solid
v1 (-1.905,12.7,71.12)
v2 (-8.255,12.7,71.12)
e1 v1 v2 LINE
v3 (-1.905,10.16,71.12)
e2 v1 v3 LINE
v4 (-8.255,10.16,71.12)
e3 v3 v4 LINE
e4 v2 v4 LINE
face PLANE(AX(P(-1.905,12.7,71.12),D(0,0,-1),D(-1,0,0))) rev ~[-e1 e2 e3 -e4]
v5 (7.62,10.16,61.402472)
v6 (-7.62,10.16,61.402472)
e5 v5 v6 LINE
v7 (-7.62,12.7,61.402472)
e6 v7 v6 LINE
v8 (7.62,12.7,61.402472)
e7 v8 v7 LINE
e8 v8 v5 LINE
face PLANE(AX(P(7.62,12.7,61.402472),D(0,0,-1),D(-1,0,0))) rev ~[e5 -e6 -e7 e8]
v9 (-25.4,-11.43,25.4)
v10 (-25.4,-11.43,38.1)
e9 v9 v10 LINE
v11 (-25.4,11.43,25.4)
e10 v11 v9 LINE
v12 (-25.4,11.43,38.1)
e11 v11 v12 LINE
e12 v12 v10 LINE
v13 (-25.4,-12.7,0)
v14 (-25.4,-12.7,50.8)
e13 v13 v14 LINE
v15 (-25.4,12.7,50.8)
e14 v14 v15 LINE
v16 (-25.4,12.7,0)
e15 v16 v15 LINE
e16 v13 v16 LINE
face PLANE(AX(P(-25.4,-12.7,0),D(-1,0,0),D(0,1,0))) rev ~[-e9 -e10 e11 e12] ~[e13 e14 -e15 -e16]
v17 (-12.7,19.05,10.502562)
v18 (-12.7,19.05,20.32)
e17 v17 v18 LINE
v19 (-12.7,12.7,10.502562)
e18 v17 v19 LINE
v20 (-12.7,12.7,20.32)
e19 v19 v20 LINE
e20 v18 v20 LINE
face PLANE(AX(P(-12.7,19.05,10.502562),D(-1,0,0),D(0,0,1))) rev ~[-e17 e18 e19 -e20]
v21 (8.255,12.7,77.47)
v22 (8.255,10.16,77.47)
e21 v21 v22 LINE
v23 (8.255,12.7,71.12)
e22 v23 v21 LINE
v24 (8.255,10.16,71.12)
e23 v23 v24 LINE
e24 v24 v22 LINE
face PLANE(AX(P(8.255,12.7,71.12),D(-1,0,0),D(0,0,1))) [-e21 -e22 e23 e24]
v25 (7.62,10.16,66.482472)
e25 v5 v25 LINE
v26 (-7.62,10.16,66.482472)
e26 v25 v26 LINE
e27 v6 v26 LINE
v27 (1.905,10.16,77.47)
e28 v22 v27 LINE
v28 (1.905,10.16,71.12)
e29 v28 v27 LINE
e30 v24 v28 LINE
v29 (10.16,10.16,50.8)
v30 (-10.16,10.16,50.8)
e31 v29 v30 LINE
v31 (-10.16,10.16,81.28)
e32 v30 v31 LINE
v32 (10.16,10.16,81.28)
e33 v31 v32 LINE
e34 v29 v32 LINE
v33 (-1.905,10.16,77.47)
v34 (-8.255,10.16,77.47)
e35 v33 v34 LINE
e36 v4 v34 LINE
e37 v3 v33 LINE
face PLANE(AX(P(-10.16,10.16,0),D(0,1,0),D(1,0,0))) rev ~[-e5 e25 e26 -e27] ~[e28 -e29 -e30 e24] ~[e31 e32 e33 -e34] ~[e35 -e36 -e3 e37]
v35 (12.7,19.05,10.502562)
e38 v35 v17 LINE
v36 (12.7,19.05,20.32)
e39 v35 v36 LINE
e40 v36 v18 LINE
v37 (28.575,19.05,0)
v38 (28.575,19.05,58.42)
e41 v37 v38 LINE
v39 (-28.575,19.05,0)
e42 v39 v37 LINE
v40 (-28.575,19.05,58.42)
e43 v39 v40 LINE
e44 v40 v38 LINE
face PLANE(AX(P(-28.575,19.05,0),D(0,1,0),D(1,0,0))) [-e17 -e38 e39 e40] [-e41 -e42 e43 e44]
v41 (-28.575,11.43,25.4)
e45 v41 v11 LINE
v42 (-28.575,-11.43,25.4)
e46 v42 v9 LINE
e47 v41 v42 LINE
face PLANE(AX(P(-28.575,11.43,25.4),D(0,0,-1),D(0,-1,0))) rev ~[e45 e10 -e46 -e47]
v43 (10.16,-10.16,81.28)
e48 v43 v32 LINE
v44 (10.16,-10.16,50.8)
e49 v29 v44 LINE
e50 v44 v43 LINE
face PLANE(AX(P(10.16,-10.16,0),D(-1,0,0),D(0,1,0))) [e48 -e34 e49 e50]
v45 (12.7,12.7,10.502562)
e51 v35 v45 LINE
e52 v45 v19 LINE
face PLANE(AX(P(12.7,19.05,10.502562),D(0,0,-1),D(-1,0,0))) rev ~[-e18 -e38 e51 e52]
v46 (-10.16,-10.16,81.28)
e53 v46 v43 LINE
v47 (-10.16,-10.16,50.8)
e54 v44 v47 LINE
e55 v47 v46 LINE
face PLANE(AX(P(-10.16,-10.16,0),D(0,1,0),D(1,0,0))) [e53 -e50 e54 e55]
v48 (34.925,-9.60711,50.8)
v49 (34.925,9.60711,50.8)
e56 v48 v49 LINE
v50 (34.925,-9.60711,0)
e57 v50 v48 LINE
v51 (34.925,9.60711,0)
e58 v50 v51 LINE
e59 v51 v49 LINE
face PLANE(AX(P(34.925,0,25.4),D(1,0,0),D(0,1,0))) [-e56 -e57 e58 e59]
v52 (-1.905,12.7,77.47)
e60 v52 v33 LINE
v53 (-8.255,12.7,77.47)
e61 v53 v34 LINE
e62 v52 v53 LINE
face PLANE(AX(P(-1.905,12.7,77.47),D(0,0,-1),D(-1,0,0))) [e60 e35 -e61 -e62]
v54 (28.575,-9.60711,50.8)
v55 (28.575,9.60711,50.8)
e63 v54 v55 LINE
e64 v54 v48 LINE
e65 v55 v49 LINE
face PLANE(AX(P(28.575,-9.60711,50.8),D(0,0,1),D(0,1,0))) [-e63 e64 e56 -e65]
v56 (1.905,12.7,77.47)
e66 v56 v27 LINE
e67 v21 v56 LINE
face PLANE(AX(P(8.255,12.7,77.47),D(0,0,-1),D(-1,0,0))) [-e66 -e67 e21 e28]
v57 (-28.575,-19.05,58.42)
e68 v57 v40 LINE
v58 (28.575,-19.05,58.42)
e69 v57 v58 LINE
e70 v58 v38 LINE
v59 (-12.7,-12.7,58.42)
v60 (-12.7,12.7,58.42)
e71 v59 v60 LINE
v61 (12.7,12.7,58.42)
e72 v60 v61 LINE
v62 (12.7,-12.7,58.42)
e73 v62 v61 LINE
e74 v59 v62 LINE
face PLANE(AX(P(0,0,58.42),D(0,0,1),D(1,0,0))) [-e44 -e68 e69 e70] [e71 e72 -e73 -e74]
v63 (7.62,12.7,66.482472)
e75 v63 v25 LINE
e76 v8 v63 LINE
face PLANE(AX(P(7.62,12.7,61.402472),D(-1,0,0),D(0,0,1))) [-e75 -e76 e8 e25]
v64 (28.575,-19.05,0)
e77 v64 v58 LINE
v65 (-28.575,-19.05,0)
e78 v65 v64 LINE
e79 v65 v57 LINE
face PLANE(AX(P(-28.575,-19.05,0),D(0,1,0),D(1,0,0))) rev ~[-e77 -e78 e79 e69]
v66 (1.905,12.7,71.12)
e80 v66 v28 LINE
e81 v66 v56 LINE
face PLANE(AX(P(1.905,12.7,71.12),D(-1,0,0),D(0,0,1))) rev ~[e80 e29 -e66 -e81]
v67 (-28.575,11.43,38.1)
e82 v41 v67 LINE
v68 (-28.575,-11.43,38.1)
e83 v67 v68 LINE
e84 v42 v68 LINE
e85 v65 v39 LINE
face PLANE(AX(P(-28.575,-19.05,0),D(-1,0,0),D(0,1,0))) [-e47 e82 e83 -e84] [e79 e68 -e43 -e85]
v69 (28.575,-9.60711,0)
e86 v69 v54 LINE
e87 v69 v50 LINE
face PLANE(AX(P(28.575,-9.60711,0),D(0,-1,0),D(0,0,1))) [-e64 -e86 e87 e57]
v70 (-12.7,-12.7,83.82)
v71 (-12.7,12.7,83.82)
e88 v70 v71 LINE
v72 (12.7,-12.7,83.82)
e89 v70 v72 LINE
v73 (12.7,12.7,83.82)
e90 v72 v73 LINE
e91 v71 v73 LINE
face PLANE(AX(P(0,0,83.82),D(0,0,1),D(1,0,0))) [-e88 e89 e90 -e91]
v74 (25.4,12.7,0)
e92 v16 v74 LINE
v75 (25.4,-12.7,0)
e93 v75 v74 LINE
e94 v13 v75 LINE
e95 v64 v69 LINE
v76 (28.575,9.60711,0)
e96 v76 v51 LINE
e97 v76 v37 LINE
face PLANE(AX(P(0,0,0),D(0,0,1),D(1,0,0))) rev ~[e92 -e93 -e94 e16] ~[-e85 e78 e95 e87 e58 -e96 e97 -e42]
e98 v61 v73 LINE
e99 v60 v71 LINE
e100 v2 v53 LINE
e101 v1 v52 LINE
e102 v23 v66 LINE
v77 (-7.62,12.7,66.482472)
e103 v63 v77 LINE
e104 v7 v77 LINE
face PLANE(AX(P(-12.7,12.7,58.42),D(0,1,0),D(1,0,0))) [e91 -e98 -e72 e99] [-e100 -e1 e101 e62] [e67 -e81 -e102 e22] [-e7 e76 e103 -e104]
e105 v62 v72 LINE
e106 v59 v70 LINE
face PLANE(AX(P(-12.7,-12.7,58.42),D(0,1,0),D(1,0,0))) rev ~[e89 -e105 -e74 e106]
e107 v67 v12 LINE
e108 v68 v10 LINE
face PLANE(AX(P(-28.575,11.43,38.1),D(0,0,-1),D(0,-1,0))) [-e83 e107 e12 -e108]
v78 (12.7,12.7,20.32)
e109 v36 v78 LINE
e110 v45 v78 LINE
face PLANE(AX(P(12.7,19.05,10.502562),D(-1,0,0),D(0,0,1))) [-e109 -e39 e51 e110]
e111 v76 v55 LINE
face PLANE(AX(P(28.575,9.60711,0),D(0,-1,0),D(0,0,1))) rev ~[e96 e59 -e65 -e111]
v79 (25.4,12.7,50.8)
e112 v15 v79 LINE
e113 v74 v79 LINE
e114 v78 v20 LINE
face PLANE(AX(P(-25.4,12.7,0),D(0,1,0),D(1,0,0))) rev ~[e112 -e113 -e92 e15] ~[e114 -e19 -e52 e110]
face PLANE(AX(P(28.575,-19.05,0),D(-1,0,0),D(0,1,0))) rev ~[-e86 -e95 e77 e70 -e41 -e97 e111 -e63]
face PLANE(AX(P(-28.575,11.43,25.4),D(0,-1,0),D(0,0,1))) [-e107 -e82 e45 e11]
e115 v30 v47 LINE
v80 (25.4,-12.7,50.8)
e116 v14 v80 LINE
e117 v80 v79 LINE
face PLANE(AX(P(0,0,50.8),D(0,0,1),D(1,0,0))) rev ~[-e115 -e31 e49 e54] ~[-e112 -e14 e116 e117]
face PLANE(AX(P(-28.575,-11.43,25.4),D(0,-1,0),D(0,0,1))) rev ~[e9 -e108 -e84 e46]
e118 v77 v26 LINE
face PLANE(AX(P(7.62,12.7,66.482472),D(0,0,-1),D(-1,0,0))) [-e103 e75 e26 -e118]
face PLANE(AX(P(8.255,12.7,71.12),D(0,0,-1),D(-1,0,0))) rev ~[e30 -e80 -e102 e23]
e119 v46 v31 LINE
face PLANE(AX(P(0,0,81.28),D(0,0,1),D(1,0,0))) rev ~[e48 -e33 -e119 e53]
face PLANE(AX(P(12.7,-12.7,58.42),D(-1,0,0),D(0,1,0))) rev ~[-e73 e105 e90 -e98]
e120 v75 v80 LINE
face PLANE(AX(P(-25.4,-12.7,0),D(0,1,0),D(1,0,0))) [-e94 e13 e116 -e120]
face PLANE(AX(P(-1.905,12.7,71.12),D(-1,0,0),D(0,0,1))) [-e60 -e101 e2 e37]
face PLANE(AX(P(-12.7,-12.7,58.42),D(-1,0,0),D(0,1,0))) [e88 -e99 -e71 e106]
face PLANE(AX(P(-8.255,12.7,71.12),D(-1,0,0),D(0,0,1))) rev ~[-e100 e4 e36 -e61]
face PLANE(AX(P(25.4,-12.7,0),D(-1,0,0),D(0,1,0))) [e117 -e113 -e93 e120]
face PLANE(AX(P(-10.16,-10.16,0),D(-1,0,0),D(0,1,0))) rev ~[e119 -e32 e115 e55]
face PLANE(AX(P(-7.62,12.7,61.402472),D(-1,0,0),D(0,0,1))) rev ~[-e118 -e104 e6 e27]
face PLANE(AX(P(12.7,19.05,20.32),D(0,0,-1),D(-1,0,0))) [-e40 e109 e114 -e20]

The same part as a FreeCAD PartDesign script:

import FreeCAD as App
import Part
import Sketcher
Q = App.Units.Quantity


def add_polygon(sketch, points):
    """Adds a closed chain of lines whose ends are joined by coincident constraints."""
    first, n = sketch.GeometryCount, len(points)
    for a, b in zip(points, points[1:] + points[:1]):
        sketch.addGeometry(Part.LineSegment(App.Vector(*a, 0), App.Vector(*b, 0)), False)
    for i in range(n):
        sketch.addConstraint(Sketcher.Constraint("Coincident", first + i, 2, first + (i + 1) % n, 1))

doc = App.newDocument("Part")
body = doc.addObject("PartDesign::Body", "Body")

# Sketch on XY plane
sketch1 = body.newObject("Sketcher::SketchObject", "Sketch")
sketch1.AttachmentSupport = (doc.getObject("XY_Plane"), [""])
sketch1.MapMode = "FlatFace"
add_polygon(sketch1, [(-28.575, 19.05), (-28.575, -19.05), (28.575, -19.05), (28.575, 19.05)])  # lines 0-3
sketch1.addConstraint([
    Sketcher.Constraint("Vertical", 0),
    Sketcher.Constraint("Horizontal", 1),
    Sketcher.Constraint("Vertical", 2),
    Sketcher.Constraint("Horizontal", 3),
    Sketcher.Constraint("Symmetric", 0, 2, 2, 2, -1, 1),
    Sketcher.Constraint("DistanceY", 0, 2, 0, 1, Q("1.5 in")),
    Sketcher.Constraint("DistanceX", 1, 1, 1, 2, Q("2.25 in")),
])
pad1 = body.newObject("PartDesign::Pad", "Pad")
pad1.Profile = sketch1
pad1.Length = Q("2.3 in")

# Sketch on XY plane
sketch2 = body.newObject("Sketcher::SketchObject", "Sketch001")
sketch2.AttachmentSupport = (doc.getObject("XY_Plane"), [""])
sketch2.MapMode = "FlatFace"
sketch2.AttachmentOffset = App.Placement(App.Vector(0, 0, 2.3 * 25.4), App.Rotation())
add_polygon(sketch2, [(-12.7, 12.7), (-12.7, -12.7), (12.7, -12.7), (12.7, 12.7)])  # lines 0-3
sketch2.addConstraint([
    Sketcher.Constraint("Vertical", 0),
    Sketcher.Constraint("Horizontal", 1),
    Sketcher.Constraint("Vertical", 2),
    Sketcher.Constraint("Horizontal", 3),
    Sketcher.Constraint("Symmetric", 0, 2, 2, 2, -1, 1),
    Sketcher.Constraint("Equal", 3, 0),
    Sketcher.Constraint("DistanceX", 1, 1, 1, 2, Q("1 in")),
])
pad2 = body.newObject("PartDesign::Pad", "Pad001")
pad2.Profile = sketch2
pad2.Length = Q("1 in")

# Sketch on XY plane
sketch3 = body.newObject("Sketcher::SketchObject", "Sketch002")
sketch3.AttachmentSupport = (doc.getObject("XY_Plane"), [""])
sketch3.MapMode = "FlatFace"
add_polygon(sketch3, [(-25.4, 12.7), (-25.4, -12.7), (25.4, -12.7), (25.4, 12.7)])  # lines 0-3
sketch3.addConstraint([
    Sketcher.Constraint("Vertical", 0),
    Sketcher.Constraint("Horizontal", 1),
    Sketcher.Constraint("Vertical", 2),
    Sketcher.Constraint("Horizontal", 3),
    Sketcher.Constraint("Symmetric", 0, 2, 2, 2, -1, 1),
    Sketcher.Constraint("DistanceX", 1, 1, 1, 2, Q("2 in")),
    Sketcher.Constraint("DistanceY", 0, 2, 0, 1, Q("1 in")),
])
pocket1 = body.newObject("PartDesign::Pocket", "Pocket")
pocket1.Profile = sketch3
pocket1.Length = Q("2 in")
pocket1.Reversed = True

# Sketch on XY plane
sketch4 = body.newObject("Sketcher::SketchObject", "Sketch003")
sketch4.AttachmentSupport = (doc.getObject("XY_Plane"), [""])
sketch4.MapMode = "FlatFace"
add_polygon(sketch4, [(-10.16, 10.16), (-10.16, -10.16), (10.16, -10.16), (10.16, 10.16)])  # lines 0-3
sketch4.addConstraint([
    Sketcher.Constraint("Vertical", 0),
    Sketcher.Constraint("Horizontal", 1),
    Sketcher.Constraint("Vertical", 2),
    Sketcher.Constraint("Horizontal", 3),
    Sketcher.Constraint("Symmetric", 0, 2, 2, 2, -1, 1),
    Sketcher.Constraint("Equal", 3, 0),
    Sketcher.Constraint("DistanceX", 1, 1, 1, 2, Q("0.8 in")),
])
pocket2 = body.newObject("PartDesign::Pocket", "Pocket001")
pocket2.Profile = sketch4
pocket2.Length = Q("3.2 in")
pocket2.Reversed = True

# Sketch on YZ plane
sketch5 = body.newObject("Sketcher::SketchObject", "Sketch004")
sketch5.AttachmentSupport = (doc.getObject("YZ_Plane"), [""])
sketch5.MapMode = "FlatFace"
sketch5.AttachmentOffset = App.Placement(App.Vector(0, 0, -1.125 * 25.4), App.Rotation())
add_polygon(sketch5, [(11.43, 38.1), (11.43, 25.4), (-11.43, 25.4), (-11.43, 38.1)])  # lines 0-3
sketch5.addConstraint([
    Sketcher.Constraint("Vertical", 0),
    Sketcher.Constraint("Horizontal", 1),
    Sketcher.Constraint("Vertical", 2),
    Sketcher.Constraint("Horizontal", 3),
    Sketcher.Constraint("DistanceX", 1, 2, 1, 1, Q("0.9 in")),
    Sketcher.Constraint("DistanceY", 0, 2, 0, 1, Q("0.5 in")),
    Sketcher.Constraint("DistanceY", -1, 1, 0, 2, Q("1 in")),
    Sketcher.Constraint("DistanceX", -1, 1, 0, 2, Q("0.45 in")),
])
pocket3 = body.newObject("PartDesign::Pocket", "Pocket002")
pocket3.Profile = sketch5
pocket3.Length = Q("1 in")
pocket3.Reversed = True

# Sketch on XZ plane
sketch6 = body.newObject("Sketcher::SketchObject", "Sketch005")
sketch6.AttachmentSupport = (doc.getObject("XZ_Plane"), [""])
sketch6.MapMode = "FlatFace"
sketch6.AttachmentOffset = App.Placement(App.Vector(0, 0, -0.5 * 25.4), App.Rotation())
add_polygon(sketch6, [(8.255, 77.47), (8.255, 71.12), (1.905, 71.12), (1.905, 77.47)])  # lines 0-3
add_polygon(sketch6, [(-1.905, 77.47), (-1.905, 71.12), (-8.255, 71.12), (-8.255, 77.47)])  # lines 4-7
add_polygon(sketch6, [(7.62, 66.482472), (7.62, 61.402472), (-7.62, 61.402472), (-7.62, 66.482472)])  # lines 8-11
sketch6.addConstraint([
    Sketcher.Constraint("Vertical", 0),
    Sketcher.Constraint("Horizontal", 1),
    Sketcher.Constraint("Vertical", 2),
    Sketcher.Constraint("Horizontal", 3),
    Sketcher.Constraint("Vertical", 4),
    Sketcher.Constraint("Horizontal", 5),
    Sketcher.Constraint("Vertical", 6),
    Sketcher.Constraint("Horizontal", 7),
    Sketcher.Constraint("Vertical", 8),
    Sketcher.Constraint("Horizontal", 9),
    Sketcher.Constraint("Vertical", 10),
    Sketcher.Constraint("Horizontal", 11),
    Sketcher.Constraint("Symmetric", 1, 2, 4, 2, -2),
    Sketcher.Constraint("Symmetric", 3, 2, 6, 2, -2),
    Sketcher.Constraint("Equal", 7, 0),
    Sketcher.Constraint("DistanceX", 9, 2, 9, 1, Q("0.6 in")),
    Sketcher.Constraint("DistanceY", 8, 2, 8, 1, Q("0.2 in")),
    Sketcher.Constraint("DistanceX", 1, 2, 1, 1, Q("0.25 in")),
    Sketcher.Constraint("DistanceY", -1, 1, 0, 2, Q("2.8 in")),
    Sketcher.Constraint("DistanceX", -1, 1, 8, 2, Q("0.3 in")),
    Sketcher.Constraint("DistanceX", 4, 2, 0, 2, Q("0.4 in")),
    Sketcher.Constraint("DistanceY", -1, 1, 10, 2, 66.482472),
])
pocket4 = body.newObject("PartDesign::Pocket", "Pocket003")
pocket4.Profile = sketch6
pocket4.Length = Q("0.5 in")
pocket4.Reversed = True

# Sketch on XZ plane
sketch7 = body.newObject("Sketcher::SketchObject", "Sketch006")
sketch7.AttachmentSupport = (doc.getObject("XZ_Plane"), [""])
sketch7.MapMode = "FlatFace"
sketch7.AttachmentOffset = App.Placement(App.Vector(0, 0, -0.75 * 25.4), App.Rotation())
add_polygon(sketch7, [(12.7, 20.32), (12.7, 10.502562), (-12.7, 10.502562), (-12.7, 20.32)])  # lines 0-3
sketch7.addConstraint([
    Sketcher.Constraint("Vertical", 0),
    Sketcher.Constraint("Horizontal", 1),
    Sketcher.Constraint("Vertical", 2),
    Sketcher.Constraint("Horizontal", 3),
    Sketcher.Constraint("DistanceX", 1, 2, 1, 1, Q("1 in")),
    Sketcher.Constraint("DistanceX", -1, 1, 0, 2, Q("0.5 in")),
    Sketcher.Constraint("DistanceY", -1, 1, 2, 2, Q("0.8 in")),
    Sketcher.Constraint("DistanceY", 0, 2, 0, 1, 9.817438),
])
pocket5 = body.newObject("PartDesign::Pocket", "Pocket004")
pocket5.Profile = sketch7
pocket5.Length = Q("0.5 in")
pocket5.Reversed = True

# Sketch on YZ plane
sketch8 = body.newObject("Sketcher::SketchObject", "Sketch007")
sketch8.AttachmentSupport = (doc.getObject("YZ_Plane"), [""])
sketch8.MapMode = "FlatFace"
sketch8.AttachmentOffset = App.Placement(App.Vector(0, 0, 1.125 * 25.4), App.Rotation())
add_polygon(sketch8, [(-9.60711, 50.8), (-9.60711, 0), (9.60711, 0), (9.60711, 50.8)])  # lines 0-3
sketch8.addConstraint([
    Sketcher.Constraint("Vertical", 0),
    Sketcher.Constraint("Horizontal", 1),
    Sketcher.Constraint("Vertical", 2),
    Sketcher.Constraint("Horizontal", 3),
    Sketcher.Constraint("Symmetric", 0, 2, 1, 2, -1, 1),
    Sketcher.Constraint("DistanceY", 0, 2, 0, 1, Q("2 in")),
    Sketcher.Constraint("DistanceX", 1, 1, 1, 2, 19.21422),
])
pad3 = body.newObject("PartDesign::Pad", "Pad002")
pad3.Profile = sketch8
pad3.Length = Q("0.25 in")

doc.recompute()
